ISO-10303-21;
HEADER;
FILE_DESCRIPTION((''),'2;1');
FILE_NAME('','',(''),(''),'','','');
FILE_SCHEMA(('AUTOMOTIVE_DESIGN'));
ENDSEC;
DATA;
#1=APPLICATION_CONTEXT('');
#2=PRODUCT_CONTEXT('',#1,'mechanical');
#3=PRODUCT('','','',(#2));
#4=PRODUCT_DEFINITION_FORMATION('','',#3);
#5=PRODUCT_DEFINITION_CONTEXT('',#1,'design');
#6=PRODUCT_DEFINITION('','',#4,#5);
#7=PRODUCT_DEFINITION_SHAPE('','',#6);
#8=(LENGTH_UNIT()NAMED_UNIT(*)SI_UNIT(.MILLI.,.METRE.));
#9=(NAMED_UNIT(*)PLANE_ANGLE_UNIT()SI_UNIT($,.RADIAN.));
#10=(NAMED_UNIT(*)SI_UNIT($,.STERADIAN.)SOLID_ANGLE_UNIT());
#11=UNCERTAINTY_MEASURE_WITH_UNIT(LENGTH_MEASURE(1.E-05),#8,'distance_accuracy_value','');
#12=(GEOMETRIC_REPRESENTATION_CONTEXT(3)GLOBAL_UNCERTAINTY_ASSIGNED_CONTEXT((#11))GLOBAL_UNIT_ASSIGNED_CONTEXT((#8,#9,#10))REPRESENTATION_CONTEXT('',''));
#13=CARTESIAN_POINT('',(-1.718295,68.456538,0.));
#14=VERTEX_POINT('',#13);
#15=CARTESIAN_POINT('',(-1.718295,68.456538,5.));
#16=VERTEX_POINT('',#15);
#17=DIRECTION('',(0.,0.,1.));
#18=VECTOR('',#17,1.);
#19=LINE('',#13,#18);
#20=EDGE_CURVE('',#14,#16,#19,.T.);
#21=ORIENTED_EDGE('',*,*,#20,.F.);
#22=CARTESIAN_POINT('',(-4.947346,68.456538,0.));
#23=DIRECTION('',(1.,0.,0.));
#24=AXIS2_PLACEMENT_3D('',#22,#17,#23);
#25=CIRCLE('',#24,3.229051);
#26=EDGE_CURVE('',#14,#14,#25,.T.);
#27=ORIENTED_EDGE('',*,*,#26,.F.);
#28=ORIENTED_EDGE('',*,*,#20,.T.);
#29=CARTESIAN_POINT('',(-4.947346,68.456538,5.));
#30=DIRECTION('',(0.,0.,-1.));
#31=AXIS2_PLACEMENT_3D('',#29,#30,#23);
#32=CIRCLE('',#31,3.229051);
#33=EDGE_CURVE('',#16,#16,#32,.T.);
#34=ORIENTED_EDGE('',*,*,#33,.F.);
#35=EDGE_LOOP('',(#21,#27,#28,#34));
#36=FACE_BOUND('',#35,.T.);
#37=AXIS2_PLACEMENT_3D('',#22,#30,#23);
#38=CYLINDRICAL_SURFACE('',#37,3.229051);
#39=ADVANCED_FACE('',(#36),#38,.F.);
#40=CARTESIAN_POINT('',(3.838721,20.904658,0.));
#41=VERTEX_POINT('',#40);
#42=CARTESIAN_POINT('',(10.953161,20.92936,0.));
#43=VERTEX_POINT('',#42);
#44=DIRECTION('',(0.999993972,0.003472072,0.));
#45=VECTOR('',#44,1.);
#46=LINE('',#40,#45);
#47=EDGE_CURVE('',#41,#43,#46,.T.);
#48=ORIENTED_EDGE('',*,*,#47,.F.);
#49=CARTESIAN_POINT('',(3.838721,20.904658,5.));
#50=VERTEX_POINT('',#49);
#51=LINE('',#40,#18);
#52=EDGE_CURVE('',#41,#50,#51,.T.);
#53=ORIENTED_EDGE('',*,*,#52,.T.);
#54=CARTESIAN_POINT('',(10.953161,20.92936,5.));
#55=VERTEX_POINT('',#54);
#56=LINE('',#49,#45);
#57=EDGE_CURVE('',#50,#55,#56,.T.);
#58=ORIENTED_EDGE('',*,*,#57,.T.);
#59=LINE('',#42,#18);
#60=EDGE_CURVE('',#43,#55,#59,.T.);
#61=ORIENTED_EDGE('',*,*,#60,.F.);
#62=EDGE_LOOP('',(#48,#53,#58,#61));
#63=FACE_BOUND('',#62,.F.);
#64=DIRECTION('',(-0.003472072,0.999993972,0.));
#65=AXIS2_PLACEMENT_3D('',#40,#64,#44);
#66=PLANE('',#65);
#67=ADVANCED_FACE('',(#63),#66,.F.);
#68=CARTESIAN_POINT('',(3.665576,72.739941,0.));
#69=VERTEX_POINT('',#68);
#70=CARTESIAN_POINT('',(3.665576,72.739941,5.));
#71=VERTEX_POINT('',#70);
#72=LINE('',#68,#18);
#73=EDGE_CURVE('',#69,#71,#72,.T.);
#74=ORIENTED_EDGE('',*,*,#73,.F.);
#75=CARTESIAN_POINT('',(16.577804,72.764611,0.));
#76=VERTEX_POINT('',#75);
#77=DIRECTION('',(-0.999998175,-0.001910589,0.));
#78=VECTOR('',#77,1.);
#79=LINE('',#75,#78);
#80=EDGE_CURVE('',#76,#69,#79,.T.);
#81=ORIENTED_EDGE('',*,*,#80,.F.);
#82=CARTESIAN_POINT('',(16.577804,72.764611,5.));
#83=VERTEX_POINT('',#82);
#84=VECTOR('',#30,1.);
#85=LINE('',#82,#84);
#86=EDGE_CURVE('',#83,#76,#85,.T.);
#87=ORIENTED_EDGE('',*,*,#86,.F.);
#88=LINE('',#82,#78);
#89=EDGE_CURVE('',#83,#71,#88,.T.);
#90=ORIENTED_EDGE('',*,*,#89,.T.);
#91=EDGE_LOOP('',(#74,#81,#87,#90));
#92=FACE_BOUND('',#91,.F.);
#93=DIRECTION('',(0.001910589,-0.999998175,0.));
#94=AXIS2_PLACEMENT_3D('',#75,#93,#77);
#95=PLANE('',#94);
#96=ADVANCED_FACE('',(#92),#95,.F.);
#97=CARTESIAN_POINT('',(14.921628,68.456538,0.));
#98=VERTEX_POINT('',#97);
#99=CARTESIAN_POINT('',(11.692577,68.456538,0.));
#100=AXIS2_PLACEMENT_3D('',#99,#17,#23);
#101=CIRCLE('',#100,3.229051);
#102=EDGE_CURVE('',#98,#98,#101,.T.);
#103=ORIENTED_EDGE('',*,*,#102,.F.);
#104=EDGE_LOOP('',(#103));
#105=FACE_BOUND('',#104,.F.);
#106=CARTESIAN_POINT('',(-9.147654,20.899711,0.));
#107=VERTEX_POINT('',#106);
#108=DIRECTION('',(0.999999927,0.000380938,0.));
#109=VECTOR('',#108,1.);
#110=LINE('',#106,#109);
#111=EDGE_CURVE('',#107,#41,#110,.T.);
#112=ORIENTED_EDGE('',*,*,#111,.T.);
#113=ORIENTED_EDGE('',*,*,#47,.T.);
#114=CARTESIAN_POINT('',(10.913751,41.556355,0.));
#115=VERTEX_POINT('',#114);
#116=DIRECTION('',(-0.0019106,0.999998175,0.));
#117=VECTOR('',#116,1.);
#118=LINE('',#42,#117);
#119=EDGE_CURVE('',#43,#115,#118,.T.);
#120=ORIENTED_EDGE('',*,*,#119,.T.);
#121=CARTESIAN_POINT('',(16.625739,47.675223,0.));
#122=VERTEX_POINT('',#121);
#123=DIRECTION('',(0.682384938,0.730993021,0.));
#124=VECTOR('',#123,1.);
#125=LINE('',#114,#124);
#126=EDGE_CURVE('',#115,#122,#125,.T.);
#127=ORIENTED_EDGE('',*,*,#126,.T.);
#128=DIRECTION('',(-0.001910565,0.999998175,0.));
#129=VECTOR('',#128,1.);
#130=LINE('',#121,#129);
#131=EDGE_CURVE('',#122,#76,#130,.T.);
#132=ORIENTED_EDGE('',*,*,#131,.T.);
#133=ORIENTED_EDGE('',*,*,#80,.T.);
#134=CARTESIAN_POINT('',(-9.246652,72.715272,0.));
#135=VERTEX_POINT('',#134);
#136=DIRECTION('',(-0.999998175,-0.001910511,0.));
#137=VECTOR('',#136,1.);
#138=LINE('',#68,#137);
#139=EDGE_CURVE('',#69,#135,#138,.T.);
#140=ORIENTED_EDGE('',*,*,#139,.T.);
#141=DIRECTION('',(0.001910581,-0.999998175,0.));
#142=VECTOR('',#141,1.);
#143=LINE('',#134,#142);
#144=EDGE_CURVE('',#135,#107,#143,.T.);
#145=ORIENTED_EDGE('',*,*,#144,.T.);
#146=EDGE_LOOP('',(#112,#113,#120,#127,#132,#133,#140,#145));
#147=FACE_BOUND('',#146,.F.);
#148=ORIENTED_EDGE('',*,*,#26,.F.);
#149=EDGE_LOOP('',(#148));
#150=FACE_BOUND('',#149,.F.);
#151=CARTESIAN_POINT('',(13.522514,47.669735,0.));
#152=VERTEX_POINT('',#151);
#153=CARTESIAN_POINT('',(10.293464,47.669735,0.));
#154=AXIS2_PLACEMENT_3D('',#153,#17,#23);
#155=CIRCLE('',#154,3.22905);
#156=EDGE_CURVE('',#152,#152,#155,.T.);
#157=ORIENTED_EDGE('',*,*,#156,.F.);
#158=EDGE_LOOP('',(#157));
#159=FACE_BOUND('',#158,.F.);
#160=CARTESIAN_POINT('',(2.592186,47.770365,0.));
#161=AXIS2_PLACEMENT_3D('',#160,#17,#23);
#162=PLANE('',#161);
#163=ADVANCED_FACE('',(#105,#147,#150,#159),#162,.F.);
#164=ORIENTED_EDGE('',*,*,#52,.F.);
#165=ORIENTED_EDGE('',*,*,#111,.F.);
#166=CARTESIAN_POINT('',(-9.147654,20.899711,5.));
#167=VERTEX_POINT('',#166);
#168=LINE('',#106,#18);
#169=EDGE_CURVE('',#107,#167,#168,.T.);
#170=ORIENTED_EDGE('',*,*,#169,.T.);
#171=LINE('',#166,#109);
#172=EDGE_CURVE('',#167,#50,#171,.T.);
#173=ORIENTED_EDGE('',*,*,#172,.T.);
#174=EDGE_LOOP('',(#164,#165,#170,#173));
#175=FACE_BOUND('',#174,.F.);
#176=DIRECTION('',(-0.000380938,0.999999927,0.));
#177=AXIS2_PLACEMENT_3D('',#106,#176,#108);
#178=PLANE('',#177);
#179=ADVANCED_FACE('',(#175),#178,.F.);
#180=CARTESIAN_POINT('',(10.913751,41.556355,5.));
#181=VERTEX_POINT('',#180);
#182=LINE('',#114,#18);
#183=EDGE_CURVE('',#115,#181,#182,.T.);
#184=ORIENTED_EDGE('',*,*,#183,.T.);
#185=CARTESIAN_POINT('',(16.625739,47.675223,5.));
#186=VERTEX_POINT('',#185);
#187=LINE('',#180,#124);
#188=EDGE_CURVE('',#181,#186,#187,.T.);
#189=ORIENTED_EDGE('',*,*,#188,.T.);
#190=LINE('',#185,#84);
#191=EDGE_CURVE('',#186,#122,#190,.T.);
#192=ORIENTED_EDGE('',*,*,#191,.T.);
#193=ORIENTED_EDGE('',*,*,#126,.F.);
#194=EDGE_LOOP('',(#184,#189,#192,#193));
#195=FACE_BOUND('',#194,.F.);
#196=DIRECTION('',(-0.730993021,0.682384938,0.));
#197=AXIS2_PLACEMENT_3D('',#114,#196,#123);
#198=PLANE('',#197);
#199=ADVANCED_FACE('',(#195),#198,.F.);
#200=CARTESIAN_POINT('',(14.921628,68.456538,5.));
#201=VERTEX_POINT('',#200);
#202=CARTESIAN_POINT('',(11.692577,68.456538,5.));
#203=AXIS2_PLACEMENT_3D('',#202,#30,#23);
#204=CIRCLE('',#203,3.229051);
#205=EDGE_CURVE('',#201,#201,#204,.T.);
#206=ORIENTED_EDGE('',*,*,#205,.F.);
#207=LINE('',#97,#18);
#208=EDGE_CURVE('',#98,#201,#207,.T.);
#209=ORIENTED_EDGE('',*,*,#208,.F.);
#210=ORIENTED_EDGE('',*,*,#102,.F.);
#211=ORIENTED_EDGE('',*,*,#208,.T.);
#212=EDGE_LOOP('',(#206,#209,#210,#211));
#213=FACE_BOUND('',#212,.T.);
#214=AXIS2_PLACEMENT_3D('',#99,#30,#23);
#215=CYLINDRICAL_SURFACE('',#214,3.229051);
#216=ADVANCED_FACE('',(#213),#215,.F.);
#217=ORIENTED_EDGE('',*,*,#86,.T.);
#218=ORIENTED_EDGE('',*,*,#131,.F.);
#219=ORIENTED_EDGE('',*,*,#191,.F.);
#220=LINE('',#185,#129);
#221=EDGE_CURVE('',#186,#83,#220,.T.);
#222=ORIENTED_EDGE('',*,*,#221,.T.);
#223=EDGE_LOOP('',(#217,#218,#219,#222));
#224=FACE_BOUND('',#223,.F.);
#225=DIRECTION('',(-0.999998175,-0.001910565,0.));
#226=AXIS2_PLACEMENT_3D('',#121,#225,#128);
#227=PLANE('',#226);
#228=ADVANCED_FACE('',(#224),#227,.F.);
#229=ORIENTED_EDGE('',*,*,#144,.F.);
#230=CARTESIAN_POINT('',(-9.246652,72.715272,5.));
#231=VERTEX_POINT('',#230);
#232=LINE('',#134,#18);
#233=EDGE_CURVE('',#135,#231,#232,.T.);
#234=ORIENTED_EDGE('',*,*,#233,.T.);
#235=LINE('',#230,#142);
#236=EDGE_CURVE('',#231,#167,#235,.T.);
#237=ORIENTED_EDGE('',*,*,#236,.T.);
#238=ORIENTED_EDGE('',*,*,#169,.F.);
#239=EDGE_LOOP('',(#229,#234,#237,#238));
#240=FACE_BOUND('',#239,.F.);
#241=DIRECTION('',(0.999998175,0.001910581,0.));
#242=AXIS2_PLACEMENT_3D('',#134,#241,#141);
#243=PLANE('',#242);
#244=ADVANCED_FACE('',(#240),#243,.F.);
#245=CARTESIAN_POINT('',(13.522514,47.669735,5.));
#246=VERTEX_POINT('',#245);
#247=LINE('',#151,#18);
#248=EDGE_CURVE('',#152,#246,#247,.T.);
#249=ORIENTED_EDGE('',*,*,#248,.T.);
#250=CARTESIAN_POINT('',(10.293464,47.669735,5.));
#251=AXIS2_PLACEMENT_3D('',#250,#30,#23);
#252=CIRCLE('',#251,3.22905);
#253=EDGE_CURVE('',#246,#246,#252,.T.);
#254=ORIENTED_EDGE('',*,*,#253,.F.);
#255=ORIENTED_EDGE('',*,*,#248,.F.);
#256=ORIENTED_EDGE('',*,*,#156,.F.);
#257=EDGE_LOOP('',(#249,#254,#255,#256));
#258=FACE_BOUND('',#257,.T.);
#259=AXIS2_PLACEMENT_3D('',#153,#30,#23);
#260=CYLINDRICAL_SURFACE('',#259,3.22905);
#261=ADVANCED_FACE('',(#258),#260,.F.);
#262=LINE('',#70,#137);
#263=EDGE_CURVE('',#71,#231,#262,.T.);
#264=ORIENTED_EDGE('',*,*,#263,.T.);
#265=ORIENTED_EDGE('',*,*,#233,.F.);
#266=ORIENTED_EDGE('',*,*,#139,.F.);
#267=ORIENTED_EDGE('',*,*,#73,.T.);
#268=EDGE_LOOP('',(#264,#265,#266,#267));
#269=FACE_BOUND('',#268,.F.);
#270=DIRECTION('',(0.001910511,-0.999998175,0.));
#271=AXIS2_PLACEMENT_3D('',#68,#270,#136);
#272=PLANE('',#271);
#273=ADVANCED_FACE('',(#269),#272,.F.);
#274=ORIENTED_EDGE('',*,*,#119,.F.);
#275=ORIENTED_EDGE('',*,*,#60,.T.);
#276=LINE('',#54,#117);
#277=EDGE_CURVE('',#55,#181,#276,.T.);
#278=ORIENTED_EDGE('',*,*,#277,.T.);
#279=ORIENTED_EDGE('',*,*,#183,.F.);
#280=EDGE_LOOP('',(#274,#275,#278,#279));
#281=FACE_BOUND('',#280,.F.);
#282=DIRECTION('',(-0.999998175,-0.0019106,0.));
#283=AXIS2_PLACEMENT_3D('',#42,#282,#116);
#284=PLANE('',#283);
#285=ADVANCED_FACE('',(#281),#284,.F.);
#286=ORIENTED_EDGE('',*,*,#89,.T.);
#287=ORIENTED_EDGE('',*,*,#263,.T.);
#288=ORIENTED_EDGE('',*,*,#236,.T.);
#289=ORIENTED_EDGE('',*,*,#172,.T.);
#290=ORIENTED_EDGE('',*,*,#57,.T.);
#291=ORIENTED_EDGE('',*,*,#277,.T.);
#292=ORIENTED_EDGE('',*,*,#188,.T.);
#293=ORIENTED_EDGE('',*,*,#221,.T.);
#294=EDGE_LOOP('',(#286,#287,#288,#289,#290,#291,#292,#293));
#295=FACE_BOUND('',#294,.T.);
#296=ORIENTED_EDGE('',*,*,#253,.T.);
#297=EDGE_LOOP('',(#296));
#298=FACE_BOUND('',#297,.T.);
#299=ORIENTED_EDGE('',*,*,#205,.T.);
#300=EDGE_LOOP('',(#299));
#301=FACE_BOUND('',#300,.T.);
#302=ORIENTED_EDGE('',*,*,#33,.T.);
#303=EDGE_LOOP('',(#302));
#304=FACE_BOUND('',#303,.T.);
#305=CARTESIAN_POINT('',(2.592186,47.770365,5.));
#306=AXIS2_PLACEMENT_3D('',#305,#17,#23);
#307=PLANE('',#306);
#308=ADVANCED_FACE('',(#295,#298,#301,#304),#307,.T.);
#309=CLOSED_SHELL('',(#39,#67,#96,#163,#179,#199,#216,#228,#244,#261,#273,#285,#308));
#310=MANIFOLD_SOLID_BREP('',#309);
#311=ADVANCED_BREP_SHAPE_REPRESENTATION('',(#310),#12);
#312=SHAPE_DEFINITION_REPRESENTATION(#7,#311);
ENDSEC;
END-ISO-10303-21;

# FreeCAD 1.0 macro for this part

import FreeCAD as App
import Part
import Sketcher

doc = App.newDocument("Part")
body = doc.addObject("PartDesign::Body", "Body")

# Sketch on XY plane
sketch1 = body.newObject("Sketcher::SketchObject", "Sketch")
sketch1.AttachmentSupport = (doc.getObject("XY_Plane"), [""])
sketch1.MapMode = "FlatFace"
sketch1.addGeometry([
    Part.LineSegment(App.Vector(17, 73, 0), App.Vector(4, 73, 0)),  # 0
    Part.LineSegment(App.Vector(4, 73, 0), App.Vector(-9, 73, 0)),  # 1
    Part.LineSegment(App.Vector(-9, 73, 0), App.Vector(-9, 21, 0)),  # 2
    Part.LineSegment(App.Vector(-9, 21, 0), App.Vector(4, 21, 0)),  # 3
    Part.LineSegment(App.Vector(4, 21, 0), App.Vector(11, 21, 0)),  # 4
    Part.LineSegment(App.Vector(11, 21, 0), App.Vector(11, 42, 0)),  # 5
    Part.LineSegment(App.Vector(11, 42, 0), App.Vector(17, 48, 0)),  # 6
    Part.LineSegment(App.Vector(17, 48, 0), App.Vector(17, 73, 0)),  # 7
], False)
sketch1.addConstraint([
    Sketcher.Constraint("Coincident", 0, 2, 1, 1),
    Sketcher.Constraint("Coincident", 1, 2, 2, 1),
    Sketcher.Constraint("Coincident", 2, 2, 3, 1),
    Sketcher.Constraint("Coincident", 3, 2, 4, 1),
    Sketcher.Constraint("Coincident", 4, 2, 5, 1),
    Sketcher.Constraint("Coincident", 5, 2, 6, 1),
    Sketcher.Constraint("Coincident", 6, 2, 7, 1),
    Sketcher.Constraint("Coincident", 7, 2, 0, 1),
    Sketcher.Constraint("Parallel", 0, 1),
    Sketcher.Constraint("Perpendicular", 1, 2),
    Sketcher.Constraint("Parallel", 2, 5),
    Sketcher.Constraint("Parallel", 5, 7),
    Sketcher.Constraint("Equal", 0, 1),
    Sketcher.Constraint("DistanceY", 3, 2, 4, 2, 0.024702),
    Sketcher.Constraint("Distance", 0, 12.912252),
    Sketcher.Constraint("DistanceY", -1, 1, 0, 2, 72.739941),
    Sketcher.Constraint("DistanceX", 1, 2, -1, 1, 9.246652),
    Sketcher.Constraint("DistanceY", -1, 1, 1, 2, 72.715272),
    Sketcher.Constraint("DistanceY", -1, 1, 2, 2, 20.899711),
    Sketcher.Constraint("DistanceX", -1, 1, 3, 2, 3.838721),
    Sketcher.Constraint("DistanceY", -1, 1, 3, 2, 20.904658),
    Sketcher.Constraint("DistanceX", -1, 1, 4, 2, 10.953161),
    Sketcher.Constraint("DistanceY", 6, 2, 1, 2, 25.040049),
    Sketcher.Constraint("Distance", 5, 20.627033),
])
pad1 = body.newObject("PartDesign::Pad", "Pad")
pad1.Profile = sketch1
pad1.Length = 5

# Sketch on XY plane
sketch2 = body.newObject("Sketcher::SketchObject", "Sketch001")
sketch2.AttachmentSupport = (doc.getObject("XY_Plane"), [""])
sketch2.MapMode = "FlatFace"
sketch2.addGeometry([
    Part.LineSegment(App.Vector(17, 73, 0), App.Vector(4, 73, 0)),  # 0
    Part.LineSegment(App.Vector(4, 73, 0), App.Vector(-9, 73, 0)),  # 1
    Part.LineSegment(App.Vector(-9, 73, 0), App.Vector(-9, 21, 0)),  # 2
    Part.LineSegment(App.Vector(-9, 21, 0), App.Vector(4, 21, 0)),  # 3
    Part.LineSegment(App.Vector(4, 21, 0), App.Vector(11, 21, 0)),  # 4
    Part.LineSegment(App.Vector(11, 21, 0), App.Vector(11, 42, 0)),  # 5
    Part.LineSegment(App.Vector(11, 42, 0), App.Vector(17, 48, 0)),  # 6
    Part.LineSegment(App.Vector(17, 48, 0), App.Vector(17, 73, 0)),  # 7
], False)
sketch2.addConstraint([
    Sketcher.Constraint("Coincident", 0, 2, 1, 1),
    Sketcher.Constraint("Coincident", 1, 2, 2, 1),
    Sketcher.Constraint("Coincident", 2, 2, 3, 1),
    Sketcher.Constraint("Coincident", 3, 2, 4, 1),
    Sketcher.Constraint("Coincident", 4, 2, 5, 1),
    Sketcher.Constraint("Coincident", 5, 2, 6, 1),
    Sketcher.Constraint("Coincident", 6, 2, 7, 1),
    Sketcher.Constraint("Coincident", 7, 2, 0, 1),
    Sketcher.Constraint("Parallel", 0, 1),
    Sketcher.Constraint("Perpendicular", 1, 2),
    Sketcher.Constraint("Parallel", 2, 5),
    Sketcher.Constraint("Parallel", 5, 7),
    Sketcher.Constraint("Equal", 0, 1),
    Sketcher.Constraint("DistanceY", 3, 2, 4, 2, 0.024702),
    Sketcher.Constraint("Distance", 0, 12.912252),
    Sketcher.Constraint("DistanceY", -1, 1, 0, 2, 72.739941),
    Sketcher.Constraint("DistanceX", 1, 2, -1, 1, 9.246652),
    Sketcher.Constraint("DistanceY", -1, 1, 1, 2, 72.715272),
    Sketcher.Constraint("DistanceY", -1, 1, 2, 2, 20.899711),
    Sketcher.Constraint("DistanceX", -1, 1, 3, 2, 3.838721),
    Sketcher.Constraint("DistanceY", -1, 1, 3, 2, 20.904658),
    Sketcher.Constraint("DistanceX", -1, 1, 4, 2, 10.953161),
    Sketcher.Constraint("DistanceY", 6, 2, 1, 2, 25.040049),
    Sketcher.Constraint("Distance", 5, 20.627033),
])
pad2 = body.newObject("PartDesign::Pad", "Pad001")
pad2.Profile = sketch2
pad2.Length = 4

# Sketch on XY plane
sketch3 = body.newObject("Sketcher::SketchObject", "Sketch002")
sketch3.AttachmentSupport = (doc.getObject("XY_Plane"), [""])
sketch3.MapMode = "FlatFace"
sketch3.addGeometry([
    Part.LineSegment(App.Vector(17, 73, 0), App.Vector(4, 73, 0)),  # 0
    Part.LineSegment(App.Vector(4, 73, 0), App.Vector(-9, 73, 0)),  # 1
    Part.LineSegment(App.Vector(-9, 73, 0), App.Vector(-9, 21, 0)),  # 2
    Part.LineSegment(App.Vector(-9, 21, 0), App.Vector(4, 21, 0)),  # 3
    Part.LineSegment(App.Vector(4, 21, 0), App.Vector(11, 21, 0)),  # 4
    Part.LineSegment(App.Vector(11, 21, 0), App.Vector(11, 42, 0)),  # 5
    Part.LineSegment(App.Vector(11, 42, 0), App.Vector(17, 48, 0)),  # 6
    Part.LineSegment(App.Vector(17, 48, 0), App.Vector(17, 73, 0)),  # 7
], False)
sketch3.addConstraint([
    Sketcher.Constraint("Coincident", 0, 2, 1, 1),
    Sketcher.Constraint("Coincident", 1, 2, 2, 1),
    Sketcher.Constraint("Coincident", 2, 2, 3, 1),
    Sketcher.Constraint("Coincident", 3, 2, 4, 1),
    Sketcher.Constraint("Coincident", 4, 2, 5, 1),
    Sketcher.Constraint("Coincident", 5, 2, 6, 1),
    Sketcher.Constraint("Coincident", 6, 2, 7, 1),
    Sketcher.Constraint("Coincident", 7, 2, 0, 1),
    Sketcher.Constraint("Parallel", 0, 1),
    Sketcher.Constraint("Perpendicular", 1, 2),
    Sketcher.Constraint("Parallel", 2, 5),
    Sketcher.Constraint("Parallel", 5, 7),
    Sketcher.Constraint("Equal", 0, 1),
    Sketcher.Constraint("DistanceY", 3, 2, 4, 2, 0.024702),
    Sketcher.Constraint("Distance", 0, 12.912252),
    Sketcher.Constraint("DistanceY", -1, 1, 0, 2, 72.739941),
    Sketcher.Constraint("DistanceX", 1, 2, -1, 1, 9.246652),
    Sketcher.Constraint("DistanceY", -1, 1, 1, 2, 72.715272),
    Sketcher.Constraint("DistanceY", -1, 1, 2, 2, 20.899711),
    Sketcher.Constraint("DistanceX", -1, 1, 3, 2, 3.838721),
    Sketcher.Constraint("DistanceY", -1, 1, 3, 2, 20.904658),
    Sketcher.Constraint("DistanceX", -1, 1, 4, 2, 10.953161),
    Sketcher.Constraint("DistanceY", 6, 2, 1, 2, 25.040049),
    Sketcher.Constraint("Distance", 5, 20.627033),
])
pad3 = body.newObject("PartDesign::Pad", "Pad002")
pad3.Profile = sketch3
pad3.Length = 4

# Sketch on XY plane
sketch4 = body.newObject("Sketcher::SketchObject", "Sketch003")
sketch4.AttachmentSupport = (doc.getObject("XY_Plane"), [""])
sketch4.MapMode = "FlatFace"
sketch4.addGeometry([
    Part.Circle(App.Vector(10.3, 47.7, 0), App.Vector(0, 0, 1), 3.2),
    Part.Circle(App.Vector(11.7, 68.5, 0), App.Vector(0, 0, 1), 3.2),
    Part.Circle(App.Vector(-4.9, 68.5, 0), App.Vector(0, 0, 1), 3.2),
], False)
sketch4.addConstraint([
    Sketcher.Constraint("Equal", 0, 1),
    Sketcher.Constraint("Equal", 1, 2),
    Sketcher.Constraint("Horizontal", 1, 3, 2, 3),
    Sketcher.Constraint("Diameter", 0, 6.4581),
    Sketcher.Constraint("DistanceX", 2, 3, 0, 3, 15.24081),
    Sketcher.Constraint("DistanceX", -1, 1, 0, 3, 10.293464),
    Sketcher.Constraint("DistanceY", -1, 1, 0, 3, 47.669735),
    Sketcher.Constraint("DistanceX", -1, 1, 1, 3, 11.692577),
    Sketcher.Constraint("DistanceY", -1, 1, 1, 3, 68.456538),
])
pocket1 = body.newObject("PartDesign::Pocket", "Pocket")
pocket1.Profile = sketch4
pocket1.Length = 25
pocket1.Reversed = True

doc.recompute()
